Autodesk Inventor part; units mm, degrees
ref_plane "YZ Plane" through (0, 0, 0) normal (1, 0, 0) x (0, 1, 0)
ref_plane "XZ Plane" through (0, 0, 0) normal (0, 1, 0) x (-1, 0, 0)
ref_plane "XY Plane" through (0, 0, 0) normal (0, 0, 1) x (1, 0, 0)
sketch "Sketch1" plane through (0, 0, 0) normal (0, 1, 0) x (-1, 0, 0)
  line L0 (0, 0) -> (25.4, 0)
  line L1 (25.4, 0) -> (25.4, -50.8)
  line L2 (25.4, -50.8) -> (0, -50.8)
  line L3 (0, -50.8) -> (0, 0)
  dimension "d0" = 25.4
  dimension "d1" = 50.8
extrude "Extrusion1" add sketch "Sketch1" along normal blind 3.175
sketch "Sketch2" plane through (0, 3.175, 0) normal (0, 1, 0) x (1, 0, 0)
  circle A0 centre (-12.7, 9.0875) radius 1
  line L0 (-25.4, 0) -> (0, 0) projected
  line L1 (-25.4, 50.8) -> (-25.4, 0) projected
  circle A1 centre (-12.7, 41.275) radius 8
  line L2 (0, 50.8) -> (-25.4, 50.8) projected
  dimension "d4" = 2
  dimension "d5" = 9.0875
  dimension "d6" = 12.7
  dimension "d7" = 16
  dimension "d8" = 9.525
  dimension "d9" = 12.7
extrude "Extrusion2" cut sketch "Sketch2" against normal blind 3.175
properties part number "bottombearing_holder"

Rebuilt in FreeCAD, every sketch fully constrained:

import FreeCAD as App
import Part
import Sketcher
Q = App.Units.Quantity

doc = App.newDocument("Part")
body = doc.addObject("PartDesign::Body", "Body")

# Sketch on XZ plane
sketch1 = body.newObject("Sketcher::SketchObject", "Sketch")
sketch1.AttachmentSupport = (doc.getObject("XZ_Plane"), [""])
sketch1.MapMode = "FlatFace"
sketch1.addGeometry(Part.LineSegment(App.Vector(-25, 0, 0), App.Vector(0, 0, 0)), False)
sketch1.addGeometry(Part.LineSegment(App.Vector(0, 0, 0), App.Vector(0, -51, 0)), False)
sketch1.addGeometry(Part.LineSegment(App.Vector(0, -51, 0), App.Vector(-25, -51, 0)), False)
sketch1.addGeometry(Part.LineSegment(App.Vector(-25, -51, 0), App.Vector(-25, 0, 0)), False)
sketch1.addConstraint(Sketcher.Constraint("Coincident", 0, 2, 1, 1))
sketch1.addConstraint(Sketcher.Constraint("Coincident", 1, 2, 2, 1))
sketch1.addConstraint(Sketcher.Constraint("Coincident", 2, 2, 3, 1))
sketch1.addConstraint(Sketcher.Constraint("Coincident", 3, 2, 0, 1))
sketch1.addConstraint(Sketcher.Constraint("Horizontal", 0))
sketch1.addConstraint(Sketcher.Constraint("Vertical", 1))
sketch1.addConstraint(Sketcher.Constraint("Horizontal", 2))
sketch1.addConstraint(Sketcher.Constraint("Vertical", 3))
sketch1.addConstraint(Sketcher.Constraint("Coincident", 0, 2, -1, 1))
sketch1.addConstraint(Sketcher.Constraint("DistanceX", 0, 1, 0, 2, Q("1 in")))
sketch1.addConstraint(Sketcher.Constraint("DistanceY", 1, 2, 1, 1, Q("2 in")))
pad1 = body.newObject("PartDesign::Pad", "Pad")
pad1.Profile = sketch1
pad1.Length = Q("0.125 in")
pad1.Reversed = True

# Sketch on XZ plane
sketch2 = body.newObject("Sketcher::SketchObject", "Sketch001")
sketch2.AttachmentSupport = (doc.getObject("XZ_Plane"), [""])
sketch2.MapMode = "FlatFace"
sketch2.AttachmentOffset = App.Placement(App.Vector(0, 0, -0.125 * 25.4), App.Rotation())
sketch2.addGeometry(Part.Circle(App.Vector(-12.7, -9.1, 0), App.Vector(0, 0, 1), 1), False)
sketch2.addGeometry(Part.Circle(App.Vector(-12.7, -41.3, 0), App.Vector(0, 0, 1), 8), False)
sketch2.addConstraint(Sketcher.Constraint("Vertical", 0, 3, 1, 3))
sketch2.addConstraint(Sketcher.Constraint("DistanceX", 0, 3, -1, 1, Q("0.5 in")))
sketch2.addConstraint(Sketcher.Constraint("Diameter", 0, Q("2 mm")))
sketch2.addConstraint(Sketcher.Constraint("Diameter", 1, Q("16 mm")))
sketch2.addConstraint(Sketcher.Constraint("DistanceY", 0, 3, -1, 1, Q("9.0875 mm")))
sketch2.addConstraint(Sketcher.Constraint("DistanceY", 1, 3, -1, 1, Q("1.625 in")))
pocket1 = body.newObject("PartDesign::Pocket", "Pocket")
pocket1.Profile = sketch2
pocket1.Length = Q("0.125 in")
pocket1.Reversed = True

doc.recompute()
